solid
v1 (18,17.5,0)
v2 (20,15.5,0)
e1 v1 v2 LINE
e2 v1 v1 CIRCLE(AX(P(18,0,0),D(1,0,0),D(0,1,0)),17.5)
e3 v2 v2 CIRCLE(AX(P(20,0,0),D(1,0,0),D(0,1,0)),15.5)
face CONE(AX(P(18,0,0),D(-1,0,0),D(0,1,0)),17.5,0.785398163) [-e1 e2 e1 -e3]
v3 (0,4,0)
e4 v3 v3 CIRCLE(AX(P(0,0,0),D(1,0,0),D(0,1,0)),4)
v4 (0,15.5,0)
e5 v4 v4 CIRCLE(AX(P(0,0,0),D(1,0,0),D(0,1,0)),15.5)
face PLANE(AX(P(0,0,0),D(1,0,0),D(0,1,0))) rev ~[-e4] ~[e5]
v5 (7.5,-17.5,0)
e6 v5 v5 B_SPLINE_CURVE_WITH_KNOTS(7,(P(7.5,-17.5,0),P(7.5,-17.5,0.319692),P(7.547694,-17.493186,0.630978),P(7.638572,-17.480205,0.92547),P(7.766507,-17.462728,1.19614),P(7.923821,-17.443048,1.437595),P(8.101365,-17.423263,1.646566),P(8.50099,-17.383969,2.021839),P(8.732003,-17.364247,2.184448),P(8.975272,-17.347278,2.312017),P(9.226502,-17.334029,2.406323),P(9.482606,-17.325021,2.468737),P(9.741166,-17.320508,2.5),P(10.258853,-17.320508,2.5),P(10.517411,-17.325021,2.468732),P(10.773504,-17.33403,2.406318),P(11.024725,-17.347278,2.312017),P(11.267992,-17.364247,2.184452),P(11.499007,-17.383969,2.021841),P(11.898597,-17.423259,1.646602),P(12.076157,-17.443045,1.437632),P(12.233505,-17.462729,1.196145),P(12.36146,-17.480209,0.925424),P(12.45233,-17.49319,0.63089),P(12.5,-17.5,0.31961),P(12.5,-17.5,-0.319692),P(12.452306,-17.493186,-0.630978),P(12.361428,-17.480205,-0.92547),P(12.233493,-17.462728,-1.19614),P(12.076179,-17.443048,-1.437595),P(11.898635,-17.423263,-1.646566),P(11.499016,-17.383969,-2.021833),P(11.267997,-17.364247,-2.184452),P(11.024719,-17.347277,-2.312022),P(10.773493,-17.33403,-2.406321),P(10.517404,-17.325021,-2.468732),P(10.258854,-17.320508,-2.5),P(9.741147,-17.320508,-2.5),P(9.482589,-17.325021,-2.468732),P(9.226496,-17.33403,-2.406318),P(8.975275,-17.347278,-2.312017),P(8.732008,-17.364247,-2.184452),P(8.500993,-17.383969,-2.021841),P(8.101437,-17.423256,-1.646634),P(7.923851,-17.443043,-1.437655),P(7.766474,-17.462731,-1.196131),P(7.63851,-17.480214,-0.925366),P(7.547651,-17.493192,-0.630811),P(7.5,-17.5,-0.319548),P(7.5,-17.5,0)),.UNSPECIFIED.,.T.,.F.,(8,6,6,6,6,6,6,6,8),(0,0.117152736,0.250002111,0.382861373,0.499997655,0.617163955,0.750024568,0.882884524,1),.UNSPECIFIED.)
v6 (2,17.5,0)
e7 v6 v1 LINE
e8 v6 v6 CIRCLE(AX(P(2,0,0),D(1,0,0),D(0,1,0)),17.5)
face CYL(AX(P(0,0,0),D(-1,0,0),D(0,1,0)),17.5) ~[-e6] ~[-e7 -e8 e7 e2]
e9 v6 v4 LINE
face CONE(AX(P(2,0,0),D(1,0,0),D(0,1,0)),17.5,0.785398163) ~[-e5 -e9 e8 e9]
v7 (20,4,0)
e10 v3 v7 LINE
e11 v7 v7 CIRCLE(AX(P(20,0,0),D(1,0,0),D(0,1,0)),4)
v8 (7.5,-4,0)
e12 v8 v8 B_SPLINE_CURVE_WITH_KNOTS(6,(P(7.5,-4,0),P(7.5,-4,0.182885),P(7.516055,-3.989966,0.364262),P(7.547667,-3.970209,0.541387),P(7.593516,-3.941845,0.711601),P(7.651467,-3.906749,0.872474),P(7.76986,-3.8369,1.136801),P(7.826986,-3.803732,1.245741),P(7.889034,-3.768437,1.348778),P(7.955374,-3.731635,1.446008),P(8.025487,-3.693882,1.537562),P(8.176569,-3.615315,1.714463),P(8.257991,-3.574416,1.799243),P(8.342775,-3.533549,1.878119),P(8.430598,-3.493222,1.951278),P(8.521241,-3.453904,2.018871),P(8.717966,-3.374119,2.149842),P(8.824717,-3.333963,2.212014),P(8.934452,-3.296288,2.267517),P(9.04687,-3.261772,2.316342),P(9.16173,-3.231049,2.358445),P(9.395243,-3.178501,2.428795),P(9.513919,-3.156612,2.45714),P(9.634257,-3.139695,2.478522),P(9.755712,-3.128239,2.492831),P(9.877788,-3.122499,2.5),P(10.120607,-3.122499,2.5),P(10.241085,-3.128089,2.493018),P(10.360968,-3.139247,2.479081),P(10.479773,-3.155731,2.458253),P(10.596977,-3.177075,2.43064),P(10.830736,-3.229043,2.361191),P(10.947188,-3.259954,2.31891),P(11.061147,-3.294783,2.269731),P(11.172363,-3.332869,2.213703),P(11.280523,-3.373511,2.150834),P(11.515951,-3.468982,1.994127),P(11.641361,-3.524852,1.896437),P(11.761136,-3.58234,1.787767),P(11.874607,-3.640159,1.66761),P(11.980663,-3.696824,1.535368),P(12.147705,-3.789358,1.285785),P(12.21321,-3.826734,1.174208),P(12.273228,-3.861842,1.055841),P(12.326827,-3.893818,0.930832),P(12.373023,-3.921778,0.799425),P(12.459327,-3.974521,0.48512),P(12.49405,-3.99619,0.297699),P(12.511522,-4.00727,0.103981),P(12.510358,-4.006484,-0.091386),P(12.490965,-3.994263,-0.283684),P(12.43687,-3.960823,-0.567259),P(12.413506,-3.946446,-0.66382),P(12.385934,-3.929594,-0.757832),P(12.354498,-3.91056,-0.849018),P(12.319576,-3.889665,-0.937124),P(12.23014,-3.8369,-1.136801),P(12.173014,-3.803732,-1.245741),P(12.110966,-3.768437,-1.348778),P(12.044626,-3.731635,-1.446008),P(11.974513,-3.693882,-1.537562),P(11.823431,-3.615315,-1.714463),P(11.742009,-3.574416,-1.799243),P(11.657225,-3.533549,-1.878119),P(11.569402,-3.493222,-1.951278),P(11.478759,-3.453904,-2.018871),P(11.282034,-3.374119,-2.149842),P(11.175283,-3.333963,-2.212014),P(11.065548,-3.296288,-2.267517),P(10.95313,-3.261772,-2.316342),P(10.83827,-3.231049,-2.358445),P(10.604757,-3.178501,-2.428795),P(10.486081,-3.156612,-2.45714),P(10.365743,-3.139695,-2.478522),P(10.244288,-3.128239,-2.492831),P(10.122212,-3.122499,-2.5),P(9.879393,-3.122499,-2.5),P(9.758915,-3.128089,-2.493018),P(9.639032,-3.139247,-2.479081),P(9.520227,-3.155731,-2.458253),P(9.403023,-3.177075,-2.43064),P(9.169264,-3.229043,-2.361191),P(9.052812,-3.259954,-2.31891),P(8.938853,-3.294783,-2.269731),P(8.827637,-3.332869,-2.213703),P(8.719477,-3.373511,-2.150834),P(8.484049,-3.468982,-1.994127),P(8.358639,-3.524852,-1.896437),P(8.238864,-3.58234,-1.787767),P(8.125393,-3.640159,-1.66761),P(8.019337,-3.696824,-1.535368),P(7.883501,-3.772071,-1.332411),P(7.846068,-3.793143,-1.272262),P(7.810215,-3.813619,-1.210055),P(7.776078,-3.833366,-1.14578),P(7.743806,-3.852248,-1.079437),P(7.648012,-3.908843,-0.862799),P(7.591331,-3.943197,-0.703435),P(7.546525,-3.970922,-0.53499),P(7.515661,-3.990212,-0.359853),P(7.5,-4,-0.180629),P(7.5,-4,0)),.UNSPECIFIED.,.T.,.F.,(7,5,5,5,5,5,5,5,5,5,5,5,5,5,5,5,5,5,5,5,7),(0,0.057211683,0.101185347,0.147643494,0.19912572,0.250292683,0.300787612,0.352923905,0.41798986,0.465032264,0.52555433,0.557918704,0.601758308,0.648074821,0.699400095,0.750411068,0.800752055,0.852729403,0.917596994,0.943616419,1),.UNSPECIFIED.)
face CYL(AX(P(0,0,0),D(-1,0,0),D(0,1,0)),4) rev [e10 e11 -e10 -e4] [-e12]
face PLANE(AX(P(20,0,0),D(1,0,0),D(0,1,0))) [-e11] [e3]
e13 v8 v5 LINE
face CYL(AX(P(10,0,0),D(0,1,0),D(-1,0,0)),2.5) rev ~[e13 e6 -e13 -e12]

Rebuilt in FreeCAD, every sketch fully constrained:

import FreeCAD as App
import Part
import Sketcher
from FreeCAD import Vector


def edges_at(feature, points):
    """Names of the edges that pass closest to the given points."""
    edges = feature.Shape.Edges
    near = lambda p: min(range(len(edges)), key=lambda i: edges[i].distToShape(Part.Vertex(*p))[0])
    return sorted({f"Edge{near(p) + 1}" for p in points})

doc = App.newDocument("Part")
body = doc.addObject("PartDesign::Body", "Body")

# Sketch on YZ plane
sketch1 = doc.addObject("Sketcher::SketchObject", "Sketch")
body.addObject(sketch1)
sketch1.AttachmentSupport = (doc.YZ_Plane, [""])
sketch1.MapMode = "FlatFace"
sketch1.addGeometry([
    Part.Circle(Vector(0, 0, 0), Vector(0, 0, 1), 17.5),
    Part.Circle(Vector(0, 0, 0), Vector(0, 0, 1), 4),
], False)
sketch1.addConstraint([
    Sketcher.Constraint("Coincident", 0, 3, -1, 1),
    Sketcher.Constraint("Coincident", 1, 3, -1, 1),
    Sketcher.Constraint("Diameter", 0, 35.0),
    Sketcher.Constraint("Diameter", 1, 8.0),
])
pad1 = doc.addObject("PartDesign::Pad", "Pad")
body.addObject(pad1)
pad1.Profile = sketch1
pad1.Length = 20
doc.recompute()

chamfer = doc.addObject("PartDesign::Chamfer", "Chamfer")
body.addObject(chamfer)
chamfer.Base = (pad1, edges_at(pad1, [(0, -17.5, 0), (20, -17.5, 0)]))
chamfer.Size = 2

# Sketch on XZ plane
sketch2 = doc.addObject("Sketcher::SketchObject", "Sketch001")
body.addObject(sketch2)
sketch2.AttachmentSupport = (doc.XZ_Plane, [""])
sketch2.MapMode = "FlatFace"
sketch2.addGeometry(Part.Circle(Vector(10, 0, 0), Vector(0, 0, 1), 2.5), False)
sketch2.addConstraint([
    Sketcher.Constraint("PointOnObject", 0, 3, -1),
    Sketcher.Constraint("Diameter", 0, 5.0),
    Sketcher.Constraint("DistanceX", -1, 1, 0, 3, 10.0),
])
pocket1 = doc.addObject("PartDesign::Pocket", "Pocket")
body.addObject(pocket1)
pocket1.Profile = sketch2
pocket1.Length = 20
pocket1.Reversed = True

doc.recompute()
